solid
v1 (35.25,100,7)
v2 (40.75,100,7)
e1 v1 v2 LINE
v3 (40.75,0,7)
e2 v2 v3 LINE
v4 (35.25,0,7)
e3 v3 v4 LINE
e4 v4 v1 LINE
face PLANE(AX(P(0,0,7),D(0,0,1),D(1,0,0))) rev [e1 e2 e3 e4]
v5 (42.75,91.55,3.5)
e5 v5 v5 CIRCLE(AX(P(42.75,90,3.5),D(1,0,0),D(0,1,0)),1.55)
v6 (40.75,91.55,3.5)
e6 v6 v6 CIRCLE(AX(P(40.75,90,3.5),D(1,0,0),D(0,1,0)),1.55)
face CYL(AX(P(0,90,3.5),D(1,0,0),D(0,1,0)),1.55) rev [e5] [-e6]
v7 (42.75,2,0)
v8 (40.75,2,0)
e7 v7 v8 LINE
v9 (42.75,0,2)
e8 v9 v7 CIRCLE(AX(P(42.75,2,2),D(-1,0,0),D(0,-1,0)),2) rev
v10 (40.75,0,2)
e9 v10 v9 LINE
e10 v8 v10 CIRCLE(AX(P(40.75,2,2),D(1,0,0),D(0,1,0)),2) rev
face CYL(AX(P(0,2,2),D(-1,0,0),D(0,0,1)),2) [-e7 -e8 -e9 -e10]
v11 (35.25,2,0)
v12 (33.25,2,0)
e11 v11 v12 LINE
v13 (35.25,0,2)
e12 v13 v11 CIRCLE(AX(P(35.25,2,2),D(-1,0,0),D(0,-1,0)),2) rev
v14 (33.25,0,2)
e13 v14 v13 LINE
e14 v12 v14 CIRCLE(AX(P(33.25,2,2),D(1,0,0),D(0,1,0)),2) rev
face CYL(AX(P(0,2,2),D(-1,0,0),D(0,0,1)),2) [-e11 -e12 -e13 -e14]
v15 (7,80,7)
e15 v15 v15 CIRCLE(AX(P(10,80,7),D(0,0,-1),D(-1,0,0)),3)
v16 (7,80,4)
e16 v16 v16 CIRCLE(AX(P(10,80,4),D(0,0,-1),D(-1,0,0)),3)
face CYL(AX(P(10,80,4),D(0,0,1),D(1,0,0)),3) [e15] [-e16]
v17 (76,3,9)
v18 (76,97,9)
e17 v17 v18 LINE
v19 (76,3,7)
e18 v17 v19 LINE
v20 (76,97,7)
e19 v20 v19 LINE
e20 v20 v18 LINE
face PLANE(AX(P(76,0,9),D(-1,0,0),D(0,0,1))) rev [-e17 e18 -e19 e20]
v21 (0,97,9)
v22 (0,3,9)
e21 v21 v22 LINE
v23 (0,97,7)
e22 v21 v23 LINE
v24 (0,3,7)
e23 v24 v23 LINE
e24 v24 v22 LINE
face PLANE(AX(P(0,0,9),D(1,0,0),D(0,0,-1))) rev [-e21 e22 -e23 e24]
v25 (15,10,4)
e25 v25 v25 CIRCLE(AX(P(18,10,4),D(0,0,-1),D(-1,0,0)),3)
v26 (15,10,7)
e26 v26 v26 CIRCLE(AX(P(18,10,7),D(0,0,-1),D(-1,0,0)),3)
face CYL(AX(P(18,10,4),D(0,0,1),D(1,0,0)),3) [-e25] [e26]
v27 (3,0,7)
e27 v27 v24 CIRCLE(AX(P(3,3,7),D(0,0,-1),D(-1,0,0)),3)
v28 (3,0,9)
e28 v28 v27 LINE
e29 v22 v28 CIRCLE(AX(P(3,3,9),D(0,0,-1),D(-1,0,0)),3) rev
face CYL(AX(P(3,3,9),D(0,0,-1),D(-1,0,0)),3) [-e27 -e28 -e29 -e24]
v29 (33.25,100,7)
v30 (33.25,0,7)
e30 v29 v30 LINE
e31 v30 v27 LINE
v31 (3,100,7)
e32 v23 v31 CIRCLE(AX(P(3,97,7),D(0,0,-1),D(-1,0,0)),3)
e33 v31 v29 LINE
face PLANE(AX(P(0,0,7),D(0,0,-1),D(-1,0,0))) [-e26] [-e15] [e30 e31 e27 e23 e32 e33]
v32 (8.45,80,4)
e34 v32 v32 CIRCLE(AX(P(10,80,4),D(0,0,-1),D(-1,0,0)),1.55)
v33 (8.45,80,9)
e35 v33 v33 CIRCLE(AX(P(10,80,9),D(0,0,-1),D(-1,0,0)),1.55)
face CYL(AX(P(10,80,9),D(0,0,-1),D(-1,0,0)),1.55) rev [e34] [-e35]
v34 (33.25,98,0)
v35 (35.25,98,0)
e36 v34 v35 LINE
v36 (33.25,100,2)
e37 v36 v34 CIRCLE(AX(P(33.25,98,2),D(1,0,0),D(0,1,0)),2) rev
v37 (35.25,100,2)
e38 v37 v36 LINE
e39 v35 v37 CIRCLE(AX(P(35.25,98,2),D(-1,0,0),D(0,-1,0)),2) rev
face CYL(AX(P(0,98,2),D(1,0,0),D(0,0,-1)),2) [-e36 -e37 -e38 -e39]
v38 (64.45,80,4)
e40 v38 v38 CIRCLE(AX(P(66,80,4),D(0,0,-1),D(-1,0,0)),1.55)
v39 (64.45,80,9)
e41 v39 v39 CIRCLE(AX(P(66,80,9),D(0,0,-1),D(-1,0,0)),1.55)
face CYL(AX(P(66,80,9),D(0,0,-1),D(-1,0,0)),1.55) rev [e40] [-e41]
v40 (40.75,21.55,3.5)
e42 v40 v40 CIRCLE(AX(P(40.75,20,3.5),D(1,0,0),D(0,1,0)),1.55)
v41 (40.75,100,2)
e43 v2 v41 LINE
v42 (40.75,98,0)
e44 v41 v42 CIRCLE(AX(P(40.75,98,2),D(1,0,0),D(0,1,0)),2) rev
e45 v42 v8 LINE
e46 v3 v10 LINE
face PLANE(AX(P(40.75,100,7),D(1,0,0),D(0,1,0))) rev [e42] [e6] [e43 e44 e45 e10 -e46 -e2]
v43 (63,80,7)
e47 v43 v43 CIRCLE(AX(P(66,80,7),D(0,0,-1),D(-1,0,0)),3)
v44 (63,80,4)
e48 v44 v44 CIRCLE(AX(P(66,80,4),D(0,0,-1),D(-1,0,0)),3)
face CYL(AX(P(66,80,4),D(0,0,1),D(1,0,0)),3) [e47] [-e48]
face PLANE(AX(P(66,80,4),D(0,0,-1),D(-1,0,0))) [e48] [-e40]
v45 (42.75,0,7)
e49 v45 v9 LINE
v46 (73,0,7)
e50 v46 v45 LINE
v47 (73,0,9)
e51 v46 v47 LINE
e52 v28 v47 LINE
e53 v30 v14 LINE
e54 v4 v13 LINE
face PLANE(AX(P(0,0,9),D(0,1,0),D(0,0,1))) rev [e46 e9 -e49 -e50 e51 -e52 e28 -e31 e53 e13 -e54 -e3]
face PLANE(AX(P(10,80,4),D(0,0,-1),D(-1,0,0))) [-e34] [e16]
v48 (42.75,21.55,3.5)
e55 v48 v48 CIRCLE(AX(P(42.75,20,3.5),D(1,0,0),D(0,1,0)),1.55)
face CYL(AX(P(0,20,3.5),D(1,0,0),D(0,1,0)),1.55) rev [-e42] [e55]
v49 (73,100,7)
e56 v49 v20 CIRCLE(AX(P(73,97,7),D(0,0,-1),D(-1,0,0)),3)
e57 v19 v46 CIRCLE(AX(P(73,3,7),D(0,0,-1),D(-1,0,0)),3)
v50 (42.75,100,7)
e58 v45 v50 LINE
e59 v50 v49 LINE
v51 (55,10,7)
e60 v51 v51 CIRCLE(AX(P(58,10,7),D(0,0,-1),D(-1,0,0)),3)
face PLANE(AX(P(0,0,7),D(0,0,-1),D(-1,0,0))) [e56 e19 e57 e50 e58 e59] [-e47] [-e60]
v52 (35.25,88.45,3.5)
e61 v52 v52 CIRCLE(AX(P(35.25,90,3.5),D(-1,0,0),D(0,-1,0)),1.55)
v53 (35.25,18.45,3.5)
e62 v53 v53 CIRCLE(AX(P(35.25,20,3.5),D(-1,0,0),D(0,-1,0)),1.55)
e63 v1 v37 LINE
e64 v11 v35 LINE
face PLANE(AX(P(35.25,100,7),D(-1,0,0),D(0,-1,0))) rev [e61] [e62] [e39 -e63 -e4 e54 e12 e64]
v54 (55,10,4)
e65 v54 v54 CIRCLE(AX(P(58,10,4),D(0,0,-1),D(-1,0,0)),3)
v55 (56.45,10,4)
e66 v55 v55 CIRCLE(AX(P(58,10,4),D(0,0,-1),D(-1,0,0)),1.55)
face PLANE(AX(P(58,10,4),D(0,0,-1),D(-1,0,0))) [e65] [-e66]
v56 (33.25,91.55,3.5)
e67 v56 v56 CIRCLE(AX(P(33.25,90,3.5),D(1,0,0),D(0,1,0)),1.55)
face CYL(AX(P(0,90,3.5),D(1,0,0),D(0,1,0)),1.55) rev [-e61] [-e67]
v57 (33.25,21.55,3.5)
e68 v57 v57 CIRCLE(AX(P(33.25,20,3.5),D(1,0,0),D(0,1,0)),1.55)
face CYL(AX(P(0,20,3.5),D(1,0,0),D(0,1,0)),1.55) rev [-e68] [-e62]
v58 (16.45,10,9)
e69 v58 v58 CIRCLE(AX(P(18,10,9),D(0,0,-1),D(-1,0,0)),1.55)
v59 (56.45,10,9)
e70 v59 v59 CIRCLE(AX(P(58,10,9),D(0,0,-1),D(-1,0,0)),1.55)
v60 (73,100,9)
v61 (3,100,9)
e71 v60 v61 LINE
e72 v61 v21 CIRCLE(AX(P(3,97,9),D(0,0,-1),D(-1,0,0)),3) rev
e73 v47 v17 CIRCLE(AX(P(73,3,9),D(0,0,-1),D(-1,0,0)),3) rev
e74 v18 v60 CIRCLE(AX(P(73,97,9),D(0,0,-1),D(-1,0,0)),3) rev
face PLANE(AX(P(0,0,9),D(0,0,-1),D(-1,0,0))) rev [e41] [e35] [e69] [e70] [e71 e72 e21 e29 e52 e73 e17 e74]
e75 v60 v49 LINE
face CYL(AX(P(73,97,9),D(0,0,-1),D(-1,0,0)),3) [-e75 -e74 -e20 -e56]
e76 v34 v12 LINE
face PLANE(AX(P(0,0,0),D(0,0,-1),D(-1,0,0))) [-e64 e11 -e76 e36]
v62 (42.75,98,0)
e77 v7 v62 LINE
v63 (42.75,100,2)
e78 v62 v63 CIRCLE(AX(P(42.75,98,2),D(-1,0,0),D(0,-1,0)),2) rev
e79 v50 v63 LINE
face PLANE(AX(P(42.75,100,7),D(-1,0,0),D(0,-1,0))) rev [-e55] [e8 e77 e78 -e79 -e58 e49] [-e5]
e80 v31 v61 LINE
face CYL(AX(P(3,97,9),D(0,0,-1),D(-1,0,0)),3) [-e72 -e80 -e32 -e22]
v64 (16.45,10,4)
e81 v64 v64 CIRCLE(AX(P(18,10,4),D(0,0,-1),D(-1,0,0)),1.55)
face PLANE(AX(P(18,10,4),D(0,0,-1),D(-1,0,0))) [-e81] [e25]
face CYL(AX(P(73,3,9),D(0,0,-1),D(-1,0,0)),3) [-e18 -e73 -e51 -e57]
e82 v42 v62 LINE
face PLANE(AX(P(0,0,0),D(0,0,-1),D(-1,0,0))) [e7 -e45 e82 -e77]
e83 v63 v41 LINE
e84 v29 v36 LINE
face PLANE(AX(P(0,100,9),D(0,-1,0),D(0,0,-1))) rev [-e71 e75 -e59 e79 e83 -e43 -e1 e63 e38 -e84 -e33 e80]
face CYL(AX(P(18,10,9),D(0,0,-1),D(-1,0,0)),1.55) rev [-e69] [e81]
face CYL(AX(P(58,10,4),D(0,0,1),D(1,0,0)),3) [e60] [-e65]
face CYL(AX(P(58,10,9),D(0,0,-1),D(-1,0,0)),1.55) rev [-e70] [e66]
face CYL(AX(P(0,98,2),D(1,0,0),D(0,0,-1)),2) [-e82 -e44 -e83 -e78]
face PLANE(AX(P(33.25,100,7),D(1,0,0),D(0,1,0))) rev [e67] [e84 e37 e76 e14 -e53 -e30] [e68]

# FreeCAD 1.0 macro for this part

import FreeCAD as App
import Part
import Sketcher
from FreeCAD import Vector


def edges_at(feature, points):
    """Names of the edges that pass closest to the given points."""
    edges = feature.Shape.Edges
    near = lambda p: min(range(len(edges)), key=lambda i: edges[i].distToShape(Part.Vertex(*p))[0])
    return sorted({f"Edge{near(p) + 1}" for p in points})


def add_polygon(sketch, points):
    """Adds a closed chain of lines whose ends are joined by coincident constraints."""
    first, n = sketch.GeometryCount, len(points)
    for a, b in zip(points, points[1:] + points[:1]):
        sketch.addGeometry(Part.LineSegment(App.Vector(*a, 0), App.Vector(*b, 0)), False)
    for i in range(n):
        sketch.addConstraint(Sketcher.Constraint("Coincident", first + i, 2, first + (i + 1) % n, 1))

doc = App.newDocument("Part")
body = doc.addObject("PartDesign::Body", "Body")

# Sketch on XY plane
sketch1 = body.newObject("Sketcher::SketchObject", "Sketch")
sketch1.AttachmentSupport = (doc.getObject("XY_Plane"), [""])
sketch1.MapMode = "FlatFace"
add_polygon(sketch1, [(0, 100), (0, 0), (76, 0), (76, 100)])  # lines 0-3
sketch1.addConstraint([
    Sketcher.Constraint("Vertical", 0),
    Sketcher.Constraint("Horizontal", 1),
    Sketcher.Constraint("Vertical", 2),
    Sketcher.Constraint("Horizontal", 3),
    Sketcher.Constraint("Coincident", 0, 2, -1, 1),
    Sketcher.Constraint("DistanceX", 1, 1, 1, 2, 76.0),
    Sketcher.Constraint("DistanceY", 0, 2, 0, 1, 100.0),
])
pad1 = body.newObject("PartDesign::Pad", "Pad")
pad1.Profile = sketch1
pad1.Length = 9

# Sketch on XY plane
sketch2 = body.newObject("Sketcher::SketchObject", "Sketch001")
sketch2.AttachmentSupport = (doc.getObject("XY_Plane"), [""])
sketch2.MapMode = "FlatFace"
add_polygon(sketch2, [(33, 100), (33, 0), (0, 0), (0, 100)])  # lines 0-3
add_polygon(sketch2, [(76, 100), (76, 0), (43, 0), (43, 100)])  # lines 4-7
add_polygon(sketch2, [(41, 100), (41, 0), (35, 0), (35, 100)])  # lines 8-11
sketch2.addConstraint([
    Sketcher.Constraint("Vertical", 0),
    Sketcher.Constraint("Horizontal", 1),
    Sketcher.Constraint("Vertical", 2),
    Sketcher.Constraint("Horizontal", 3),
    Sketcher.Constraint("Vertical", 4),
    Sketcher.Constraint("Horizontal", 5),
    Sketcher.Constraint("Vertical", 6),
    Sketcher.Constraint("Horizontal", 7),
    Sketcher.Constraint("Vertical", 8),
    Sketcher.Constraint("Horizontal", 9),
    Sketcher.Constraint("Vertical", 10),
    Sketcher.Constraint("Horizontal", 11),
    Sketcher.Constraint("Coincident", 1, 2, -1, 1),
    Sketcher.Constraint("PointOnObject", 4, 2, -1),
    Sketcher.Constraint("PointOnObject", 8, 2, -1),
    Sketcher.Constraint("Horizontal", 3, 2, 6, 2),
    Sketcher.Constraint("Horizontal", 7, 2, 10, 2),
    Sketcher.Constraint("Equal", 3, 5),
    Sketcher.Constraint("DistanceY", 0, 2, 0, 1, 100.0),
    Sketcher.Constraint("DistanceX", 9, 2, 9, 1, 5.5),
    Sketcher.Constraint("DistanceX", -1, 1, 4, 2, 76.0),
    Sketcher.Constraint("DistanceX", 8, 2, 5, 2, 2.0),
    Sketcher.Constraint("DistanceX", 0, 2, 9, 2, 2.0),
])
pocket1 = body.newObject("PartDesign::Pocket", "Pocket")
pocket1.Profile = sketch2
pocket1.Length = 7
pocket1.Reversed = True

# Sketch on YZ plane
sketch3 = body.newObject("Sketcher::SketchObject", "Sketch002")
sketch3.AttachmentSupport = (doc.getObject("YZ_Plane"), [""])
sketch3.MapMode = "FlatFace"
sketch3.AttachmentOffset = App.Placement(Vector(0, 0, 42.75), App.Rotation())
sketch3.addGeometry([
    Part.Circle(Vector(20, 3.5, 0), Vector(0, 0, 1), 1.6),
    Part.Circle(Vector(90, 3.5, 0), Vector(0, 0, 1), 1.6),
], False)
sketch3.addConstraint([
    Sketcher.Constraint("Equal", 0, 1),
    Sketcher.Constraint("Horizontal", 0, 3, 1, 3),
    Sketcher.Constraint("Diameter", 0, 3.1),
    Sketcher.Constraint("DistanceX", -1, 1, 0, 3, 20.0),
    Sketcher.Constraint("DistanceX", -1, 1, 1, 3, 90.0),
    Sketcher.Constraint("DistanceY", -1, 1, 0, 3, 3.5),
])
pocket2 = body.newObject("PartDesign::Pocket", "Pocket001")
pocket2.Profile = sketch3
pocket2.Type = "ThroughAll"
doc.recompute()

fillet = body.newObject("PartDesign::Fillet", "Fillet")
fillet.Base = (pocket2, edges_at(pocket2, [
    (0, 100, 8),
    (76, 100, 8),
    (76, 0, 8),
    (0, 0, 8),
]))
fillet.Radius = 3
doc.recompute()

fillet2 = body.newObject("PartDesign::Fillet", "Fillet001")
fillet2.Base = (fillet, edges_at(fillet, [
    (41.75, 100, 0),
    (34.25, 100, 0),
    (34.25, 0, 0),
    (41.75, 0, 0),
]))
fillet2.Radius = 2

# Sketch on XY plane
sketch4 = body.newObject("Sketcher::SketchObject", "Sketch003")
sketch4.AttachmentSupport = (doc.getObject("XY_Plane"), [""])
sketch4.MapMode = "FlatFace"
sketch4.AttachmentOffset = App.Placement(Vector(0, 0, 7), App.Rotation())
sketch4.addGeometry([
    Part.Circle(Vector(66, 80, 0), Vector(0, 0, 1), 3),
    Part.Circle(Vector(10, 80, 0), Vector(0, 0, 1), 3),
    Part.Circle(Vector(18, 10, 0), Vector(0, 0, 1), 3),
    Part.Circle(Vector(58, 10, 0), Vector(0, 0, 1), 3),
], False)
sketch4.addConstraint([
    Sketcher.Constraint("Equal", 0, 1),
    Sketcher.Constraint("Equal", 1, 2),
    Sketcher.Constraint("Equal", 2, 3),
    Sketcher.Constraint("Horizontal", 0, 3, 1, 3),
    Sketcher.Constraint("Horizontal", 2, 3, 3, 3),
    Sketcher.Constraint("Diameter", 0, 6.0),
    Sketcher.Constraint("DistanceX", -1, 1, 0, 3, 66.0),
    Sketcher.Constraint("DistanceY", -1, 1, 0, 3, 80.0),
    Sketcher.Constraint("DistanceX", -1, 1, 1, 3, 10.0),
    Sketcher.Constraint("DistanceX", -1, 1, 2, 3, 18.0),
    Sketcher.Constraint("DistanceY", -1, 1, 2, 3, 10.0),
    Sketcher.Constraint("DistanceX", -1, 1, 3, 3, 58.0),
])
pad2 = body.newObject("PartDesign::Pad", "Pad001")
pad2.Profile = sketch4
pad2.Length = 3
pad2.Reversed = True

# Sketch on XY plane
sketch5 = body.newObject("Sketcher::SketchObject", "Sketch004")
sketch5.AttachmentSupport = (doc.getObject("XY_Plane"), [""])
sketch5.MapMode = "FlatFace"
sketch5.AttachmentOffset = App.Placement(Vector(0, 0, 7), App.Rotation())
sketch5.addGeometry([
    Part.Circle(Vector(66, 80, 0), Vector(0, 0, 1), 1.6),
    Part.Circle(Vector(58, 10, 0), Vector(0, 0, 1), 1.6),
    Part.Circle(Vector(18, 10, 0), Vector(0, 0, 1), 1.6),
    Part.Circle(Vector(10, 80, 0), Vector(0, 0, 1), 1.6),
], False)
sketch5.addConstraint([
    Sketcher.Constraint("Equal", 0, 1),
    Sketcher.Constraint("Equal", 1, 2),
    Sketcher.Constraint("Equal", 2, 3),
    Sketcher.Constraint("Horizontal", 1, 3, 2, 3),
    Sketcher.Constraint("Horizontal", 0, 3, 3, 3),
    Sketcher.Constraint("Diameter", 0, 3.1),
    Sketcher.Constraint("DistanceX", -1, 1, 0, 3, 66.0),
    Sketcher.Constraint("DistanceY", -1, 1, 0, 3, 80.0),
    Sketcher.Constraint("DistanceX", -1, 1, 1, 3, 58.0),
    Sketcher.Constraint("DistanceY", -1, 1, 1, 3, 10.0),
    Sketcher.Constraint("DistanceX", -1, 1, 2, 3, 18.0),
    Sketcher.Constraint("DistanceX", -1, 1, 3, 3, 10.0),
])
pocket3 = body.newObject("PartDesign::Pocket", "Pocket002")
pocket3.Profile = sketch5
pocket3.Type = "ThroughAll"
pocket3.Midplane = True

doc.recompute()
